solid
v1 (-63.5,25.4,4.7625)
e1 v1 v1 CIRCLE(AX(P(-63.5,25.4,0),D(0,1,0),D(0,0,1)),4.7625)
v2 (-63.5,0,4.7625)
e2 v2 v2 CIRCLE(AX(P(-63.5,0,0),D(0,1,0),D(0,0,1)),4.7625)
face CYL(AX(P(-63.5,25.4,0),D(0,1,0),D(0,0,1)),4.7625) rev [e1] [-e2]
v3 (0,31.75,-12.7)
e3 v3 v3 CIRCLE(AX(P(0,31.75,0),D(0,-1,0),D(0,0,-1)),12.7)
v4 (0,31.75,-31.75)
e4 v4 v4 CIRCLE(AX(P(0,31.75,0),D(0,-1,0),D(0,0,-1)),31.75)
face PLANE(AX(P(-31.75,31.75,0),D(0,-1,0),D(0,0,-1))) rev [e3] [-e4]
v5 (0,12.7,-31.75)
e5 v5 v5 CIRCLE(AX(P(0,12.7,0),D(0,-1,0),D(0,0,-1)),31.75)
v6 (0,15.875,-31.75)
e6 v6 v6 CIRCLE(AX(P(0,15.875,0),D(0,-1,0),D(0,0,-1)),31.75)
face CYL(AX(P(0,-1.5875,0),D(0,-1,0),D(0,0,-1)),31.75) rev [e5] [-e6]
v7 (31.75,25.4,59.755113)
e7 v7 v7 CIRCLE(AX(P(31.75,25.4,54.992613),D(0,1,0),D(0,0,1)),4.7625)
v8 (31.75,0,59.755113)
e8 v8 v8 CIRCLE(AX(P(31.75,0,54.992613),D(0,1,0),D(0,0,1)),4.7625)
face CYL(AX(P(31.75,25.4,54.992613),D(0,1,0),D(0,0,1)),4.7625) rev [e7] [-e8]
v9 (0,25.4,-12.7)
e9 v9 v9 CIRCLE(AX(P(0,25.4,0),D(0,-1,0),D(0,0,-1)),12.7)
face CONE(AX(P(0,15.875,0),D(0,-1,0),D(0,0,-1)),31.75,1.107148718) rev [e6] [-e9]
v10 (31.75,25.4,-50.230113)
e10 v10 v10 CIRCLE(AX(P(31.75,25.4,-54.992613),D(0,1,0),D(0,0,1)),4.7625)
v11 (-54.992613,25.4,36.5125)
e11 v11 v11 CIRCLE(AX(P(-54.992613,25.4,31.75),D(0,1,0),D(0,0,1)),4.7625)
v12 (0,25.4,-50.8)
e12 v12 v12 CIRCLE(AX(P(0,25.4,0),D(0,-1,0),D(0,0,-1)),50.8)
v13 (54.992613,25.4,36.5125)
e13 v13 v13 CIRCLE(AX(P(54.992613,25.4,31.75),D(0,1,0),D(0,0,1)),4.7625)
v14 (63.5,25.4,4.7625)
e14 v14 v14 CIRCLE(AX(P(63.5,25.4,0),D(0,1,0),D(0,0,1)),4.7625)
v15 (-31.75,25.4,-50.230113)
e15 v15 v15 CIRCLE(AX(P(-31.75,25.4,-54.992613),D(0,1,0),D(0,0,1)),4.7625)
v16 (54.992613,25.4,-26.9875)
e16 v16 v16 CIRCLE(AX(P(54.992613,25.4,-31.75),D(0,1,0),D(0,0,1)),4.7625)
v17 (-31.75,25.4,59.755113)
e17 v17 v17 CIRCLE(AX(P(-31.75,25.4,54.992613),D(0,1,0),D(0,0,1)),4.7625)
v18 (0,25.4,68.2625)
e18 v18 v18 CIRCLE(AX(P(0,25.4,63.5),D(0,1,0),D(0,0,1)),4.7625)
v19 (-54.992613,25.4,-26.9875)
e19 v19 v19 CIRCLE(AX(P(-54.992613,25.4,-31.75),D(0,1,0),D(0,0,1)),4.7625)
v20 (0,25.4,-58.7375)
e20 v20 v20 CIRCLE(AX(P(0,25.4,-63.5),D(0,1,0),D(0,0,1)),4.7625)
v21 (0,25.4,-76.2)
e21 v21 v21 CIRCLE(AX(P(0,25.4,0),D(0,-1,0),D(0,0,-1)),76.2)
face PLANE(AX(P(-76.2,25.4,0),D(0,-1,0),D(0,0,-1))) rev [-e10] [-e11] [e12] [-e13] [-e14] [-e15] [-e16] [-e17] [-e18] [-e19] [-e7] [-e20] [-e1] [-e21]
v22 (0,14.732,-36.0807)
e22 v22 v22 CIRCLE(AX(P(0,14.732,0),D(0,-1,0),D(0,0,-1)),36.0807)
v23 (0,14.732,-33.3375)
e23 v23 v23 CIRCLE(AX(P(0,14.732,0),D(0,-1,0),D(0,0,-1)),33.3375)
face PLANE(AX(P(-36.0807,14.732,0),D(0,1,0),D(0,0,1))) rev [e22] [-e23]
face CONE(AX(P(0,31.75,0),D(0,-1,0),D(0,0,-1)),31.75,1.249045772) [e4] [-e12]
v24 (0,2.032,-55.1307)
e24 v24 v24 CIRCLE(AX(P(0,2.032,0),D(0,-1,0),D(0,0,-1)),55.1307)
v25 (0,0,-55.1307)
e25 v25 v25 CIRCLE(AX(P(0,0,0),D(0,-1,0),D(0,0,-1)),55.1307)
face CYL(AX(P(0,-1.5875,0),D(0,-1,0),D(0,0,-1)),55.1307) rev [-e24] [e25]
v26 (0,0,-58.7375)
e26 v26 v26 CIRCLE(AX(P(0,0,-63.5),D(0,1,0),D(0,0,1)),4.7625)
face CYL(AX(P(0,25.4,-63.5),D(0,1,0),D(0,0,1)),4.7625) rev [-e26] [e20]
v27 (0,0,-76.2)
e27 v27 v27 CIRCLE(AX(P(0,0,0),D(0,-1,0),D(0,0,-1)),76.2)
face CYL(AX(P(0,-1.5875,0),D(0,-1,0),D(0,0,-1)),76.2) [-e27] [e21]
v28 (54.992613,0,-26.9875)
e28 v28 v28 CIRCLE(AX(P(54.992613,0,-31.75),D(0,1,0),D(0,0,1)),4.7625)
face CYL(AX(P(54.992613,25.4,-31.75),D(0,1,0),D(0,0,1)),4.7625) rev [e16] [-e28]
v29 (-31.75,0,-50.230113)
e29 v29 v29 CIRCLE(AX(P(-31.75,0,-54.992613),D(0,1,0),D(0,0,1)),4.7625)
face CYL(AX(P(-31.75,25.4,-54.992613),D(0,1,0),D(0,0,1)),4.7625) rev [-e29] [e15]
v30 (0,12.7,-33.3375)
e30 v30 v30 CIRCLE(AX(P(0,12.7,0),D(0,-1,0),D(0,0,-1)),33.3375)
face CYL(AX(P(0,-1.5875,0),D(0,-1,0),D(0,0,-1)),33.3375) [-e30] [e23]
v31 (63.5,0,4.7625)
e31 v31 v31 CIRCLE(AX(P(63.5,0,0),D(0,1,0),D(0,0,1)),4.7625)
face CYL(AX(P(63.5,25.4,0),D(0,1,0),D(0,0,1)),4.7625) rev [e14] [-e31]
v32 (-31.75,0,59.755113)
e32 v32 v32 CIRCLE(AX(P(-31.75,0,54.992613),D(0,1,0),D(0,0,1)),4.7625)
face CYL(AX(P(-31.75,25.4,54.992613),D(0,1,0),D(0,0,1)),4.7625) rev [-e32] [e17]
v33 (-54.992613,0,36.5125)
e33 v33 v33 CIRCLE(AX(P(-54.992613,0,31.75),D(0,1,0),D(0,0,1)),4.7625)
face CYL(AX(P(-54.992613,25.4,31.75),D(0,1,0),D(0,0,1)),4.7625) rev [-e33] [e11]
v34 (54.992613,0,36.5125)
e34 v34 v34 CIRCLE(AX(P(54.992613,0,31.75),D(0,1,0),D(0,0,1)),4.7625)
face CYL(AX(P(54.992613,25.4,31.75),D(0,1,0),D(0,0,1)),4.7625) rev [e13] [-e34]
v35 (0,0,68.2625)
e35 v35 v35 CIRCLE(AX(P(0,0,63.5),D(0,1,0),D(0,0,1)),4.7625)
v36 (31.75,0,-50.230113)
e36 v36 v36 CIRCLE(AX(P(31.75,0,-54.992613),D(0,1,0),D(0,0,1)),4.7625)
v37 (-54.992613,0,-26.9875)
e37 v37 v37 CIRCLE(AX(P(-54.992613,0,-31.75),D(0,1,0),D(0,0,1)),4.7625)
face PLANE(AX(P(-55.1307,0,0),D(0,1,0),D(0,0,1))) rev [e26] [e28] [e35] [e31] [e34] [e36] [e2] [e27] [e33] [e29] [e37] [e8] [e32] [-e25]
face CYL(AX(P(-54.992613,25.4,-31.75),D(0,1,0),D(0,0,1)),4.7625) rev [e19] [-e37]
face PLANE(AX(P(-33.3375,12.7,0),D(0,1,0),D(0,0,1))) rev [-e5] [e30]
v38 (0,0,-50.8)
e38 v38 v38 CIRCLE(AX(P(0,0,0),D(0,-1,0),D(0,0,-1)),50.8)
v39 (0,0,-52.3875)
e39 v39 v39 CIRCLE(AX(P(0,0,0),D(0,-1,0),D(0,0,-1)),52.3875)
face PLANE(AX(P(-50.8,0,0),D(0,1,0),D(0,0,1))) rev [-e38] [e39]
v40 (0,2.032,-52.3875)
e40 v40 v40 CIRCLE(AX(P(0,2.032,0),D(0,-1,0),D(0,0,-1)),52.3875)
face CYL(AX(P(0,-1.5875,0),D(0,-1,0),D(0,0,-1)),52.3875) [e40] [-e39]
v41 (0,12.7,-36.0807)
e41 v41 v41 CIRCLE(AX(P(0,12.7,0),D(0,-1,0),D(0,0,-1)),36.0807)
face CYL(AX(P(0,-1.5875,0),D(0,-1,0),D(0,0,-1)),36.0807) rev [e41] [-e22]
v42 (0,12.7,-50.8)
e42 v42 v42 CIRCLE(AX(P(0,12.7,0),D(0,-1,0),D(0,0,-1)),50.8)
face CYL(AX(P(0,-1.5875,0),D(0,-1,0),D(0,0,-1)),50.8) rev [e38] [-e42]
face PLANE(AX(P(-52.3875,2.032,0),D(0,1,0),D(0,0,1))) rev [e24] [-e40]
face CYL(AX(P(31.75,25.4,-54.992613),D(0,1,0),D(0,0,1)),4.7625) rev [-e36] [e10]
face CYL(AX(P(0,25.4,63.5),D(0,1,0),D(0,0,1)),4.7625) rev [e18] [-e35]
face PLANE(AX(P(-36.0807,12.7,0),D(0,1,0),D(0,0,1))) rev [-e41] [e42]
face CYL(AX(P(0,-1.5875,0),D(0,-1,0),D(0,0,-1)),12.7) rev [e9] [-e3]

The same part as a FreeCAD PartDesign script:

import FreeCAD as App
import Part
import Sketcher

V = App.Vector
Q = App.Units.Quantity

doc = App.newDocument("Part")
body = doc.addObject("PartDesign::Body", "Body")

sketch1 = doc.addObject("Sketcher::SketchObject", "Sketch")
body.addObject(sketch1)
sketch1.AttachmentSupport = (doc.XY_Plane, [""])
sketch1.MapMode = "FlatFace"
sketch1.addGeometry(Part.LineSegment(V(-76.2, 25.4, 0), V(-76.2, 0, 0)), False)
sketch1.addGeometry(Part.LineSegment(V(-76.2, 0, 0), V(-55.1, 0, 0)), False)
sketch1.addGeometry(Part.LineSegment(V(-55.1, 0, 0), V(-55.1, 2, 0)), False)
sketch1.addGeometry(Part.LineSegment(V(-55.1, 2, 0), V(-52.4, 2, 0)), False)
sketch1.addGeometry(Part.LineSegment(V(-52.4, 2, 0), V(-52.4, 0, 0)), False)
sketch1.addGeometry(Part.LineSegment(V(-52.4, 0, 0), V(-50.8, 0, 0)), False)
sketch1.addGeometry(Part.LineSegment(V(-50.8, 0, 0), V(-50.8, 12.7, 0)), False)
sketch1.addGeometry(Part.LineSegment(V(-50.8, 12.7, 0), V(-36.1, 12.7, 0)), False)
sketch1.addGeometry(Part.LineSegment(V(-36.1, 12.7, 0), V(-36.1, 14.7, 0)), False)
sketch1.addGeometry(Part.LineSegment(V(-36.1, 14.7, 0), V(-33.3, 14.7, 0)), False)
sketch1.addGeometry(Part.LineSegment(V(-33.3, 14.7, 0), V(-33.3, 12.7, 0)), False)
sketch1.addGeometry(Part.LineSegment(V(-33.3, 12.7, 0), V(-31.8, 12.7, 0)), False)
sketch1.addGeometry(Part.LineSegment(V(-31.8, 12.7, 0), V(-31.8, 15.9, 0)), False)
sketch1.addGeometry(Part.LineSegment(V(-31.8, 15.9, 0), V(-12.7, 25.4, 0)), False)
sketch1.addGeometry(Part.LineSegment(V(-12.7, 25.4, 0), V(-12.7, 31.8, 0)), False)
sketch1.addGeometry(Part.LineSegment(V(-12.7, 31.8, 0), V(-31.8, 31.8, 0)), False)
sketch1.addGeometry(Part.LineSegment(V(-31.8, 31.8, 0), V(-50.8, 25.4, 0)), False)
sketch1.addGeometry(Part.LineSegment(V(-50.8, 25.4, 0), V(-76.2, 25.4, 0)), False)
sketch1.addConstraint(Sketcher.Constraint("Coincident", 0, 2, 1, 1))
sketch1.addConstraint(Sketcher.Constraint("Coincident", 1, 2, 2, 1))
sketch1.addConstraint(Sketcher.Constraint("Coincident", 2, 2, 3, 1))
sketch1.addConstraint(Sketcher.Constraint("Coincident", 3, 2, 4, 1))
sketch1.addConstraint(Sketcher.Constraint("Coincident", 4, 2, 5, 1))
sketch1.addConstraint(Sketcher.Constraint("Coincident", 5, 2, 6, 1))
sketch1.addConstraint(Sketcher.Constraint("Coincident", 6, 2, 7, 1))
sketch1.addConstraint(Sketcher.Constraint("Coincident", 7, 2, 8, 1))
sketch1.addConstraint(Sketcher.Constraint("Coincident", 8, 2, 9, 1))
sketch1.addConstraint(Sketcher.Constraint("Coincident", 9, 2, 10, 1))
sketch1.addConstraint(Sketcher.Constraint("Coincident", 10, 2, 11, 1))
sketch1.addConstraint(Sketcher.Constraint("Coincident", 11, 2, 12, 1))
sketch1.addConstraint(Sketcher.Constraint("Coincident", 12, 2, 13, 1))
sketch1.addConstraint(Sketcher.Constraint("Coincident", 13, 2, 14, 1))
sketch1.addConstraint(Sketcher.Constraint("Coincident", 14, 2, 15, 1))
sketch1.addConstraint(Sketcher.Constraint("Coincident", 15, 2, 16, 1))
sketch1.addConstraint(Sketcher.Constraint("Coincident", 16, 2, 17, 1))
sketch1.addConstraint(Sketcher.Constraint("Coincident", 17, 2, 0, 1))
sketch1.addConstraint(Sketcher.Constraint("Vertical", 0))
sketch1.addConstraint(Sketcher.Constraint("Horizontal", 1))
sketch1.addConstraint(Sketcher.Constraint("Vertical", 2))
sketch1.addConstraint(Sketcher.Constraint("Horizontal", 3))
sketch1.addConstraint(Sketcher.Constraint("Vertical", 4))
sketch1.addConstraint(Sketcher.Constraint("Horizontal", 5))
sketch1.addConstraint(Sketcher.Constraint("Vertical", 6))
sketch1.addConstraint(Sketcher.Constraint("Horizontal", 7))
sketch1.addConstraint(Sketcher.Constraint("Vertical", 8))
sketch1.addConstraint(Sketcher.Constraint("Horizontal", 9))
sketch1.addConstraint(Sketcher.Constraint("Vertical", 10))
sketch1.addConstraint(Sketcher.Constraint("Horizontal", 11))
sketch1.addConstraint(Sketcher.Constraint("Vertical", 12))
sketch1.addConstraint(Sketcher.Constraint("Vertical", 14))
sketch1.addConstraint(Sketcher.Constraint("Horizontal", 15))
sketch1.addConstraint(Sketcher.Constraint("Horizontal", 17))
sketch1.addConstraint(Sketcher.Constraint("PointOnObject", 0, 2, -1))
sketch1.addConstraint(Sketcher.Constraint("PointOnObject", 4, 2, -1))
sketch1.addConstraint(Sketcher.Constraint("Horizontal", 7, 2, 10, 2))
sketch1.addConstraint(Sketcher.Constraint("Horizontal", 13, 2, 16, 2))
sketch1.addConstraint(Sketcher.Constraint("Vertical", 12, 2, 15, 2))
sketch1.addConstraint(Sketcher.Constraint("Vertical", 6, 2, 16, 2))
sketch1.addConstraint(Sketcher.Constraint("Equal", 3, 9))
sketch1.addConstraint(Sketcher.Constraint("Equal", 5, 11))
sketch1.addConstraint(Sketcher.Constraint("Equal", 17, 0))
sketch1.addConstraint(Sketcher.Constraint("Equal", 4, 8))
sketch1.addConstraint(Sketcher.Constraint("DistanceX", 17, 2, 17, 1, Q("1 in")))
sketch1.addConstraint(Sketcher.Constraint("DistanceY", 6, 1, 6, 2, Q("0.5 in")))
sketch1.addConstraint(Sketcher.Constraint("DistanceX", 0, 2, -1, 1, Q("3 in")))
sketch1.addConstraint(Sketcher.Constraint("DistanceX", 15, 2, 15, 1, Q("0.75 in")))
sketch1.addConstraint(Sketcher.Constraint("DistanceY", 2, 1, 2, 2, Q("0.08 in")))
sketch1.addConstraint(Sketcher.Constraint("DistanceY", 14, 1, 14, 2, Q("0.25 in")))
sketch1.addConstraint(Sketcher.Constraint("DistanceX", 13, 2, -1, 1, Q("0.5 in")))
sketch1.addConstraint(Sketcher.Constraint("DistanceX", 3, 1, 3, 2, Q("0.108 in")))
sketch1.addConstraint(Sketcher.Constraint("DistanceX", 5, 1, 5, 2, Q("0.0625 in")))
sketch1.addConstraint(Sketcher.Constraint("DistanceY", 12, 1, 12, 2, Q("0.125 in")))
revolution = doc.addObject("PartDesign::Revolution", "Revolution")
body.addObject(revolution)
revolution.Profile = sketch1
revolution.ReferenceAxis = (sketch1, ["V_Axis"])
revolution.Angle = 360

sketch2 = doc.addObject("Sketcher::SketchObject", "Sketch001")
body.addObject(sketch2)
sketch2.AttachmentSupport = (doc.YZ_Plane, [""])
sketch2.MapMode = "FlatFace"
sketch2.AttachmentOffset = App.Placement(V(0, 0, -2.5 * 25.4), App.Rotation())
sketch2.addGeometry(Part.LineSegment(V(-28.3, 0, 0), V(25.4, 0, 0)), False)
sketch2.addGeometry(Part.LineSegment(V(25.4, 0, 0), V(25.4, 4.8, 0)), False)
sketch2.addGeometry(Part.LineSegment(V(25.4, 4.8, 0), V(-25.4, 4.8, 0)), False)
sketch2.addGeometry(Part.LineSegment(V(-25.4, 4.8, 0), V(-28.3, 0, 0)), False)
sketch2.addConstraint(Sketcher.Constraint("Coincident", 0, 2, 1, 1))
sketch2.addConstraint(Sketcher.Constraint("Coincident", 1, 2, 2, 1))
sketch2.addConstraint(Sketcher.Constraint("Coincident", 2, 2, 3, 1))
sketch2.addConstraint(Sketcher.Constraint("Coincident", 3, 2, 0, 1))
sketch2.addConstraint(Sketcher.Constraint("Horizontal", 0))
sketch2.addConstraint(Sketcher.Constraint("Vertical", 1))
sketch2.addConstraint(Sketcher.Constraint("Horizontal", 2))
sketch2.addConstraint(Sketcher.Constraint("PointOnObject", 0, 2, -1))
sketch2.addConstraint(Sketcher.Constraint("DistanceX", 2, 2, 2, 1, Q("2 in")))
sketch2.addConstraint(Sketcher.Constraint("DistanceX", -1, 1, 0, 2, Q("1 in")))
sketch2.addConstraint(Sketcher.Constraint("Angle", 3, Q("-121 deg")))
sketch2.addConstraint(Sketcher.Constraint("DistanceY", 1, 1, 1, 2, Q("0.1875 in")))
groove = doc.addObject("PartDesign::Groove", "Groove")
body.addObject(groove)
groove.Profile = sketch2
groove.ReferenceAxis = (sketch2, ["H_Axis"])
groove.Angle = 360
doc.recompute()

polarpattern = doc.addObject("PartDesign::PolarPattern", "PolarPattern")
body.addObject(polarpattern)
polarpattern.Originals = [groove]
polarpattern.Axis = (doc.Y_Axis, [""])
polarpattern.Angle = 360
polarpattern.Occurrences = 12
body.Tip = polarpattern

doc.recompute()
